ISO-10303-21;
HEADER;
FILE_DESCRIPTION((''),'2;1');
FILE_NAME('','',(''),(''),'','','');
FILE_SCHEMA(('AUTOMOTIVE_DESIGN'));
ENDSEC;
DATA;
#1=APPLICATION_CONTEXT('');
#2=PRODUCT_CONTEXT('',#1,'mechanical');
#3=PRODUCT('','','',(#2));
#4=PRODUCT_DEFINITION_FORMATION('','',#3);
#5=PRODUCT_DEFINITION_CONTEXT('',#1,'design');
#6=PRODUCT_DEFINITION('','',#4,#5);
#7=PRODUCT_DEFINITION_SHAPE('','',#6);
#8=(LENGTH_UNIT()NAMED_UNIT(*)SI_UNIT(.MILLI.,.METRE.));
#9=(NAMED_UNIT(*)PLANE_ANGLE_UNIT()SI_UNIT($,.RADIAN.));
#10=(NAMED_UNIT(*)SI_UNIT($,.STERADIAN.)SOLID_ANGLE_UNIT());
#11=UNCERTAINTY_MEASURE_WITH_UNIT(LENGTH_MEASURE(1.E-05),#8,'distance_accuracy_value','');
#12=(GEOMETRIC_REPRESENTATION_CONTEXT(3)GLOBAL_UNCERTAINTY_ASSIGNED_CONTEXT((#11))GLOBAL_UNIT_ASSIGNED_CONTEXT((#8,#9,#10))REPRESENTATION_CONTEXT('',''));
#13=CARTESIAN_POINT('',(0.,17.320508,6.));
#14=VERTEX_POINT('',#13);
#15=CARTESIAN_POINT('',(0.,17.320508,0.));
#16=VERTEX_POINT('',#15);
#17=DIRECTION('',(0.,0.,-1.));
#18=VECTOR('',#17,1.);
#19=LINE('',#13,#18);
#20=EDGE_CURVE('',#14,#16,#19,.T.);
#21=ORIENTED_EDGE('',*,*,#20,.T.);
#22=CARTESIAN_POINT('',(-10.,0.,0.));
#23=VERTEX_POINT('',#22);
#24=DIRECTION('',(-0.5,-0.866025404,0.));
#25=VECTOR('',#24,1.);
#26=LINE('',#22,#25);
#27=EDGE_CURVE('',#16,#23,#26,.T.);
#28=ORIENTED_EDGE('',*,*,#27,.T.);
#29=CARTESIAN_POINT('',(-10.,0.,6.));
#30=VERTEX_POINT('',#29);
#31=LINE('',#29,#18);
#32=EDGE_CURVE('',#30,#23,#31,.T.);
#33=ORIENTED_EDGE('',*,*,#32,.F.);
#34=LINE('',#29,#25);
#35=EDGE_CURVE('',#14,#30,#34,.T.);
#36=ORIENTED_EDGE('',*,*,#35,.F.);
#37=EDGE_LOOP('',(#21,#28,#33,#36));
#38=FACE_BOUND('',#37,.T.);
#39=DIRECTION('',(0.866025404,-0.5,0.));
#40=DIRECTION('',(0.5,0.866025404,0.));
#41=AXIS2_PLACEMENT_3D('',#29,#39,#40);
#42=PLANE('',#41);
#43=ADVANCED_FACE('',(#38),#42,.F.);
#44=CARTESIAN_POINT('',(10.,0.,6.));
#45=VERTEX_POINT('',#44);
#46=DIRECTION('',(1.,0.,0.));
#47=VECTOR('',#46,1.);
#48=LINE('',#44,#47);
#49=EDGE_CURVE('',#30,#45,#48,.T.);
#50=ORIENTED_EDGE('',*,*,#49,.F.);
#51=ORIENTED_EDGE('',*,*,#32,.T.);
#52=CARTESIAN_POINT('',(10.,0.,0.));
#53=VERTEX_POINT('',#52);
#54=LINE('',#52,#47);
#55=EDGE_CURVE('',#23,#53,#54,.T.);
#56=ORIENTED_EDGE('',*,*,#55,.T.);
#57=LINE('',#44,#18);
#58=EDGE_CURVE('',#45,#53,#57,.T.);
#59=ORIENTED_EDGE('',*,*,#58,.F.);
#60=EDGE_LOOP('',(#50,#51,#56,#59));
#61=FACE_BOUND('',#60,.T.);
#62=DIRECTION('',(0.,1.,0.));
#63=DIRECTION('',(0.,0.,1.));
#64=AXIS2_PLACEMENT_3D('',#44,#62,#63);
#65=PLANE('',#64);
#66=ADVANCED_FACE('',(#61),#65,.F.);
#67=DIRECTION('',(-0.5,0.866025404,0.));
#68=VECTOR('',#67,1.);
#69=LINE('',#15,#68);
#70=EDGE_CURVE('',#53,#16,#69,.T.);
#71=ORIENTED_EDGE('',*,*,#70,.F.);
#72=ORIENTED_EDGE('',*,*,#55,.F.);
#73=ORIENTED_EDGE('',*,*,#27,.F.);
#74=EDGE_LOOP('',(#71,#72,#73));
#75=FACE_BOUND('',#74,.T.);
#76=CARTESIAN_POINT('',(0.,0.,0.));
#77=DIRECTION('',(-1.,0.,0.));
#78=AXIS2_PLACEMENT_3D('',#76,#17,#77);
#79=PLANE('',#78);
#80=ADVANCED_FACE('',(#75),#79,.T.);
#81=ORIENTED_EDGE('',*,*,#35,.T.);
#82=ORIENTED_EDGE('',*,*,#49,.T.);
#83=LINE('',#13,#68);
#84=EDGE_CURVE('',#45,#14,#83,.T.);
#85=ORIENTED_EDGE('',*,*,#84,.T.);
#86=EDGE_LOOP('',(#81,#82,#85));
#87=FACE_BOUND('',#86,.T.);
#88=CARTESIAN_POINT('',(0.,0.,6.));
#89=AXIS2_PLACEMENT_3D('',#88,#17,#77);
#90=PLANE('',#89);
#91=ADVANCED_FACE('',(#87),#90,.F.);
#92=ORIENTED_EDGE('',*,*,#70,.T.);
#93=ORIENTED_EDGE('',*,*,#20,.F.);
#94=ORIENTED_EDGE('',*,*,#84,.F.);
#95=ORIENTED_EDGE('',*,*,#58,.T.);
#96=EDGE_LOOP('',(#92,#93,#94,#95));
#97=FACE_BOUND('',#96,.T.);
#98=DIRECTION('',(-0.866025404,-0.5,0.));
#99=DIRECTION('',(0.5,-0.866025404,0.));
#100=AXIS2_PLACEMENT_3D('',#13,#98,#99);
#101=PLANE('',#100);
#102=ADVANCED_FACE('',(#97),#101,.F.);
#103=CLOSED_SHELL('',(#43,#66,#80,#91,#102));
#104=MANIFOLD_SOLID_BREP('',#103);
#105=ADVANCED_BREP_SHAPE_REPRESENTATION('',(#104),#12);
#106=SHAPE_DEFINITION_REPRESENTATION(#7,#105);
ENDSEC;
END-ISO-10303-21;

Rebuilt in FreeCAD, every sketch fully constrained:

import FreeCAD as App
import Part
import Sketcher
Q = App.Units.Quantity


def add_polygon(sketch, points):
    """Adds a closed chain of lines whose ends are joined by coincident constraints."""
    first, n = sketch.GeometryCount, len(points)
    for a, b in zip(points, points[1:] + points[:1]):
        sketch.addGeometry(Part.LineSegment(App.Vector(*a, 0), App.Vector(*b, 0)), False)
    for i in range(n):
        sketch.addConstraint(Sketcher.Constraint("Coincident", first + i, 2, first + (i + 1) % n, 1))

doc = App.newDocument("Part")
body = doc.addObject("PartDesign::Body", "Body")

sketch1 = doc.addObject("Sketcher::SketchObject", "Sketch")
body.addObject(sketch1)
sketch1.AttachmentSupport = (doc.XY_Plane, [""])
sketch1.MapMode = "FlatFace"
add_polygon(sketch1, [(10, 0), (0, 17), (-10, 0)])
sketch1.addConstraint([
    Sketcher.Constraint("Horizontal", 2),
    Sketcher.Constraint("Symmetric", 1, 2, 2, 2, -1, 1),
    Sketcher.Constraint("PointOnObject", 0, 2, -2),
    Sketcher.Constraint("DistanceX", 2, 1, 2, 2, 20.0),
    Sketcher.Constraint("Angle", 0, Q("120 deg")),
])
pad1 = doc.addObject("PartDesign::Pad", "Pad")
body.addObject(pad1)
pad1.Profile = sketch1
pad1.Length = 6

doc.recompute()
